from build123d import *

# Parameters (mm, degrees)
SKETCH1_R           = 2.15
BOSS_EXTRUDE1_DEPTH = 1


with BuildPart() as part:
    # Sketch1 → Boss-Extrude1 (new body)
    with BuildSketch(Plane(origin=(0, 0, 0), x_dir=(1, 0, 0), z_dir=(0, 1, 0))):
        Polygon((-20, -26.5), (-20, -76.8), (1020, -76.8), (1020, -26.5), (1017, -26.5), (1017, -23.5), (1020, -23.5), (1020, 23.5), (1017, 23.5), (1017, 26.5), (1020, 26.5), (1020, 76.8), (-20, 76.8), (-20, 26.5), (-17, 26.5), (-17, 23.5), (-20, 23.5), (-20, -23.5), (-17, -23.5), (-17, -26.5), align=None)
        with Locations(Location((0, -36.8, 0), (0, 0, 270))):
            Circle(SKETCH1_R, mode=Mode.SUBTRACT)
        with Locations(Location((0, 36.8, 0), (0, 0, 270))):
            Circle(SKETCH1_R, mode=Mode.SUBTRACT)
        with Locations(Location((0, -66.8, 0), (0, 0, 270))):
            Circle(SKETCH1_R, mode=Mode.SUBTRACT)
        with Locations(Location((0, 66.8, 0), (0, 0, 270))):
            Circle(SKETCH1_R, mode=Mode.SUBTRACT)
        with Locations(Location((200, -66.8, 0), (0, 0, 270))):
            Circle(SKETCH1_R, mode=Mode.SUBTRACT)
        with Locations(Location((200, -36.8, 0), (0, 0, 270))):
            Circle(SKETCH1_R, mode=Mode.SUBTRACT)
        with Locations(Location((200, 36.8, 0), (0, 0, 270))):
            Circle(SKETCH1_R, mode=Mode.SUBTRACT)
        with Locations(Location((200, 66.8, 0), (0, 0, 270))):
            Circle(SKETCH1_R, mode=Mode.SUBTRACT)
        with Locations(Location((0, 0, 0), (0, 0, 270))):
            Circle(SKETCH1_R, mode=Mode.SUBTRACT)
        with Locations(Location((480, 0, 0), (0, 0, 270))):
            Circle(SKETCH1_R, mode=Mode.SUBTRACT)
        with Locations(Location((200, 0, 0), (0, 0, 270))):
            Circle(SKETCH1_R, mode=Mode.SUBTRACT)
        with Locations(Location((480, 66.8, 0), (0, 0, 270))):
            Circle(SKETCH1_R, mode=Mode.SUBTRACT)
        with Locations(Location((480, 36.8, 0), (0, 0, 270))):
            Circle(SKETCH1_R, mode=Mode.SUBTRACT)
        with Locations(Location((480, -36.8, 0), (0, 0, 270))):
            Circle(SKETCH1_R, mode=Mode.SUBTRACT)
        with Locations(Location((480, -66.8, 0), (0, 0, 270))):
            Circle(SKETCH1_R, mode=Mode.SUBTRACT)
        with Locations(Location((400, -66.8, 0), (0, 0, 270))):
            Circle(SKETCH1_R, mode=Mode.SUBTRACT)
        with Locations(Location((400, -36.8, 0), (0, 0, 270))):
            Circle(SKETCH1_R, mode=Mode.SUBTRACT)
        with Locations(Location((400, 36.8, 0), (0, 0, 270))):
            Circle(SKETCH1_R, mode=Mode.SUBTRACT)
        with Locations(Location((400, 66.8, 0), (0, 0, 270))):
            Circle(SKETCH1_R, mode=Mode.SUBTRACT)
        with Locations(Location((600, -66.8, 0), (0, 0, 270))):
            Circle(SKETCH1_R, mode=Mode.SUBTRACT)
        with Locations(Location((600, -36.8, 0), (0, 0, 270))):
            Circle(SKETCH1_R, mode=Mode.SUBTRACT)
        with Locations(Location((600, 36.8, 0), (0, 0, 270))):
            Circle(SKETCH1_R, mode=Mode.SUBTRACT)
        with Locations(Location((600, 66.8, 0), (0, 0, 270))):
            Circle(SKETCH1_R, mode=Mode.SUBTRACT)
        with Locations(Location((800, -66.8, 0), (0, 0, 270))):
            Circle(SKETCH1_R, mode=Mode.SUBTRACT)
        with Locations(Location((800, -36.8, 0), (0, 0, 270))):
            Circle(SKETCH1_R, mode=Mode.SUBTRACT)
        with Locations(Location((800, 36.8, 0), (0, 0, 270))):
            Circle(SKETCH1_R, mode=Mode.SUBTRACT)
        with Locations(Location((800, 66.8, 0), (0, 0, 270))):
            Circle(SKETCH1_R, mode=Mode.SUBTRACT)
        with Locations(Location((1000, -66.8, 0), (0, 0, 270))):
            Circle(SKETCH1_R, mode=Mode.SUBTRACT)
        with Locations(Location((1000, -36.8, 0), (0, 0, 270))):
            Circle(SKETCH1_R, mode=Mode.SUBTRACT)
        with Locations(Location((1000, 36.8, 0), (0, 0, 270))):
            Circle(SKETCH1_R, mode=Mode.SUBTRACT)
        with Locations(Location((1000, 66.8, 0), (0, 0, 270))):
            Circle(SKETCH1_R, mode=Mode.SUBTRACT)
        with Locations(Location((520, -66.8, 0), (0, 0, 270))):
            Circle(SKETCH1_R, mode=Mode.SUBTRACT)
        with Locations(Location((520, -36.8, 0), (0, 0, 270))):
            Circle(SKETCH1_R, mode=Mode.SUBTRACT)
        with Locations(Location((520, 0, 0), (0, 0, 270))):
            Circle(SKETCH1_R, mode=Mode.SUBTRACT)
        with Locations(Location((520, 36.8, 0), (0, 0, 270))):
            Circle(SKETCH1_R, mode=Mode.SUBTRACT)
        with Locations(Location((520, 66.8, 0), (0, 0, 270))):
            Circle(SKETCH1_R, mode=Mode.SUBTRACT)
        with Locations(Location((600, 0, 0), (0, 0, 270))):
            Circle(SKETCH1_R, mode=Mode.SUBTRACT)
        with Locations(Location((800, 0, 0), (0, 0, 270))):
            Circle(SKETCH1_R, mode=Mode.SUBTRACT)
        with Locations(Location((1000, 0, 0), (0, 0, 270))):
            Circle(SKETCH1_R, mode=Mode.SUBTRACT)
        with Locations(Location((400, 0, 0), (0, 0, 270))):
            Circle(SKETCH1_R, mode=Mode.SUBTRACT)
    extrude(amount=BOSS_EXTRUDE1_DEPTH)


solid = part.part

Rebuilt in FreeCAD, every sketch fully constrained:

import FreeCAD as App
import Part
import Sketcher

V = App.Vector

doc = App.newDocument("Part")
body = doc.addObject("PartDesign::Body", "Body")

# Sketch on XZ plane
sketch1 = doc.addObject("Sketcher::SketchObject", "Sketch")
body.addObject(sketch1)
sketch1.AttachmentSupport = (doc.XZ_Plane, [""])
sketch1.MapMode = "FlatFace"
sketch1.addGeometry([
    Part.LineSegment(V(-20, 26.5, 0), V(-20, 76.8, 0)),  # 0
    Part.LineSegment(V(-20, 76.8, 0), V(1020, 76.8, 0)),  # 1
    Part.LineSegment(V(1020, 76.8, 0), V(1020, 26.5, 0)),  # 2
    Part.LineSegment(V(1020, 26.5, 0), V(1017, 26.5, 0)),  # 3
    Part.LineSegment(V(1017, 26.5, 0), V(1017, 23.5, 0)),  # 4
    Part.LineSegment(V(1017, 23.5, 0), V(1020, 23.5, 0)),  # 5
    Part.LineSegment(V(1020, 23.5, 0), V(1020, -23.5, 0)),  # 6
    Part.LineSegment(V(1020, -23.5, 0), V(1017, -23.5, 0)),  # 7
    Part.LineSegment(V(1017, -23.5, 0), V(1017, -26.5, 0)),  # 8
    Part.LineSegment(V(1017, -26.5, 0), V(1020, -26.5, 0)),  # 9
    Part.LineSegment(V(1020, -26.5, 0), V(1020, -76.8, 0)),  # 10
    Part.LineSegment(V(1020, -76.8, 0), V(-20, -76.8, 0)),  # 11
    Part.LineSegment(V(-20, -76.8, 0), V(-20, -26.5, 0)),  # 12
    Part.LineSegment(V(-20, -26.5, 0), V(-17, -26.5, 0)),  # 13
    Part.LineSegment(V(-17, -26.5, 0), V(-17, -23.5, 0)),  # 14
    Part.LineSegment(V(-17, -23.5, 0), V(-20, -23.5, 0)),  # 15
    Part.LineSegment(V(-20, -23.5, 0), V(-20, 23.5, 0)),  # 16
    Part.LineSegment(V(-20, 23.5, 0), V(-17, 23.5, 0)),  # 17
    Part.LineSegment(V(-17, 23.5, 0), V(-17, 26.5, 0)),  # 18
    Part.LineSegment(V(-17, 26.5, 0), V(-20, 26.5, 0)),  # 19
    Part.Circle(V(0, 66.8, 0), V(0, 0, 1), 2.1),  # 20
    Part.Circle(V(200, 66.8, 0), V(0, 0, 1), 2.1),  # 21
    Part.Circle(V(0, 36.8, 0), V(0, 0, 1), 2.1),  # 22
    Part.Circle(V(200, 36.8, 0), V(0, 0, 1), 2.1),  # 23
    Part.Circle(V(400, 66.8, 0), V(0, 0, 1), 2.1),  # 24
    Part.Circle(V(480, 66.8, 0), V(0, 0, 1), 2.1),  # 25
    Part.Circle(V(400, 36.8, 0), V(0, 0, 1), 2.1),  # 26
    Part.Circle(V(480, 36.8, 0), V(0, 0, 1), 2.1),  # 27
    Part.Circle(V(520, 66.8, 0), V(0, 0, 1), 2.1),  # 28
    Part.Circle(V(600, 66.8, 0), V(0, 0, 1), 2.1),  # 29
    Part.Circle(V(520, 36.8, 0), V(0, 0, 1), 2.1),  # 30
    Part.Circle(V(600, 36.8, 0), V(0, 0, 1), 2.1),  # 31
    Part.Circle(V(800, 66.8, 0), V(0, 0, 1), 2.1),  # 32
    Part.Circle(V(1000, 66.8, 0), V(0, 0, 1), 2.1),  # 33
    Part.Circle(V(800, 36.8, 0), V(0, 0, 1), 2.1),  # 34
    Part.Circle(V(1000, 36.8, 0), V(0, 0, 1), 2.1),  # 35
    Part.Circle(V(0, 0, 0), V(0, 0, 1), 2.1),  # 36
    Part.Circle(V(200, 0, 0), V(0, 0, 1), 2.1),  # 37
    Part.Circle(V(400, 0, 0), V(0, 0, 1), 2.1),  # 38
    Part.Circle(V(480, 0, 0), V(0, 0, 1), 2.1),  # 39
    Part.Circle(V(0, -36.8, 0), V(0, 0, 1), 2.1),  # 40
    Part.Circle(V(200, -36.8, 0), V(0, 0, 1), 2.1),  # 41
    Part.Circle(V(0, -66.8, 0), V(0, 0, 1), 2.1),  # 42
    Part.Circle(V(200, -66.8, 0), V(0, 0, 1), 2.1),  # 43
    Part.Circle(V(400, -36.8, 0), V(0, 0, 1), 2.1),  # 44
    Part.Circle(V(480, -36.8, 0), V(0, 0, 1), 2.1),  # 45
    Part.Circle(V(400, -66.8, 0), V(0, 0, 1), 2.1),  # 46
    Part.Circle(V(480, -66.8, 0), V(0, 0, 1), 2.1),  # 47
    Part.Circle(V(520, 0, 0), V(0, 0, 1), 2.1),  # 48
    Part.Circle(V(600, 0, 0), V(0, 0, 1), 2.1),  # 49
    Part.Circle(V(800, 0, 0), V(0, 0, 1), 2.1),  # 50
    Part.Circle(V(1000, 0, 0), V(0, 0, 1), 2.1),  # 51
    Part.Circle(V(520, -36.8, 0), V(0, 0, 1), 2.1),  # 52
    Part.Circle(V(600, -36.8, 0), V(0, 0, 1), 2.1),  # 53
    Part.Circle(V(520, -66.8, 0), V(0, 0, 1), 2.1),  # 54
    Part.Circle(V(600, -66.8, 0), V(0, 0, 1), 2.1),  # 55
    Part.Circle(V(800, -36.8, 0), V(0, 0, 1), 2.1),  # 56
    Part.Circle(V(1000, -36.8, 0), V(0, 0, 1), 2.1),  # 57
    Part.Circle(V(800, -66.8, 0), V(0, 0, 1), 2.1),  # 58
    Part.Circle(V(1000, -66.8, 0), V(0, 0, 1), 2.1),  # 59
], False)
sketch1.addConstraint([
    Sketcher.Constraint("Coincident", 0, 2, 1, 1),
    Sketcher.Constraint("Coincident", 1, 2, 2, 1),
    Sketcher.Constraint("Coincident", 2, 2, 3, 1),
    Sketcher.Constraint("Coincident", 3, 2, 4, 1),
    Sketcher.Constraint("Coincident", 4, 2, 5, 1),
    Sketcher.Constraint("Coincident", 5, 2, 6, 1),
    Sketcher.Constraint("Coincident", 6, 2, 7, 1),
    Sketcher.Constraint("Coincident", 7, 2, 8, 1),
    Sketcher.Constraint("Coincident", 8, 2, 9, 1),
    Sketcher.Constraint("Coincident", 9, 2, 10, 1),
    Sketcher.Constraint("Coincident", 10, 2, 11, 1),
    Sketcher.Constraint("Coincident", 11, 2, 12, 1),
    Sketcher.Constraint("Coincident", 12, 2, 13, 1),
    Sketcher.Constraint("Coincident", 13, 2, 14, 1),
    Sketcher.Constraint("Coincident", 14, 2, 15, 1),
    Sketcher.Constraint("Coincident", 15, 2, 16, 1),
    Sketcher.Constraint("Coincident", 16, 2, 17, 1),
    Sketcher.Constraint("Coincident", 17, 2, 18, 1),
    Sketcher.Constraint("Coincident", 18, 2, 19, 1),
    Sketcher.Constraint("Coincident", 19, 2, 0, 1),
    Sketcher.Constraint("Vertical", 0),
    Sketcher.Constraint("Horizontal", 1),
    Sketcher.Constraint("Vertical", 2),
    Sketcher.Constraint("Horizontal", 3),
    Sketcher.Constraint("Vertical", 4),
    Sketcher.Constraint("Horizontal", 5),
    Sketcher.Constraint("Vertical", 6),
    Sketcher.Constraint("Horizontal", 7),
    Sketcher.Constraint("Vertical", 8),
    Sketcher.Constraint("Horizontal", 9),
    Sketcher.Constraint("Vertical", 10),
    Sketcher.Constraint("Horizontal", 11),
    Sketcher.Constraint("Vertical", 12),
    Sketcher.Constraint("Horizontal", 13),
    Sketcher.Constraint("Vertical", 14),
    Sketcher.Constraint("Horizontal", 15),
    Sketcher.Constraint("Vertical", 16),
    Sketcher.Constraint("Horizontal", 17),
    Sketcher.Constraint("Vertical", 18),
    Sketcher.Constraint("Horizontal", 19),
    Sketcher.Constraint("Coincident", 36, 3, -1, 1),
    Sketcher.Constraint("Equal", 20, 21),
    Sketcher.Constraint("Equal", 21, 22),
    Sketcher.Constraint("Equal", 22, 23),
    Sketcher.Constraint("Equal", 23, 24),
    Sketcher.Constraint("Equal", 24, 25),
    Sketcher.Constraint("Equal", 25, 26),
    Sketcher.Constraint("Equal", 26, 27),
    Sketcher.Constraint("Equal", 27, 28),
    Sketcher.Constraint("Equal", 28, 29),
    Sketcher.Constraint("Equal", 29, 30),
    Sketcher.Constraint("Equal", 30, 31),
    Sketcher.Constraint("Equal", 31, 32),
    Sketcher.Constraint("Equal", 32, 33),
    Sketcher.Constraint("Equal", 33, 34),
    Sketcher.Constraint("Equal", 34, 35),
    Sketcher.Constraint("Equal", 35, 36),
    Sketcher.Constraint("Equal", 36, 37),
    Sketcher.Constraint("Equal", 37, 38),
    Sketcher.Constraint("Equal", 38, 39),
    Sketcher.Constraint("Equal", 39, 40),
    Sketcher.Constraint("Equal", 40, 41),
    Sketcher.Constraint("Equal", 41, 42),
    Sketcher.Constraint("Equal", 42, 43),
    Sketcher.Constraint("Equal", 43, 44),
    Sketcher.Constraint("Equal", 44, 45),
    Sketcher.Constraint("Equal", 45, 46),
    Sketcher.Constraint("Equal", 46, 47),
    Sketcher.Constraint("Equal", 47, 48),
    Sketcher.Constraint("Equal", 48, 49),
    Sketcher.Constraint("Equal", 49, 50),
    Sketcher.Constraint("Equal", 50, 51),
    Sketcher.Constraint("Equal", 51, 52),
    Sketcher.Constraint("Equal", 52, 53),
    Sketcher.Constraint("Equal", 53, 54),
    Sketcher.Constraint("Equal", 54, 55),
    Sketcher.Constraint("Equal", 55, 56),
    Sketcher.Constraint("Equal", 56, 57),
    Sketcher.Constraint("Equal", 57, 58),
    Sketcher.Constraint("Equal", 58, 59),
    Sketcher.Constraint("Symmetric", 22, 3, 40, 3, -1, 1),
    Sketcher.Constraint("Symmetric", 20, 3, 42, 3, -1, 1),
    Sketcher.Constraint("Symmetric", 23, 3, 41, 3, -1),
    Sketcher.Constraint("Symmetric", 21, 3, 43, 3, -1),
    Sketcher.Constraint("Symmetric", 26, 3, 44, 3, -1),
    Sketcher.Constraint("Symmetric", 27, 3, 45, 3, -1),
    Sketcher.Constraint("Symmetric", 24, 3, 46, 3, -1),
    Sketcher.Constraint("Symmetric", 25, 3, 47, 3, -1),
    Sketcher.Constraint("Symmetric", 30, 3, 52, 3, -1),
    Sketcher.Constraint("Symmetric", 31, 3, 53, 3, -1),
    Sketcher.Constraint("Symmetric", 28, 3, 54, 3, -1),
    Sketcher.Constraint("Symmetric", 29, 3, 55, 3, -1),
    Sketcher.Constraint("Symmetric", 34, 3, 56, 3, -1),
    Sketcher.Constraint("Symmetric", 35, 3, 57, 3, -1),
    Sketcher.Constraint("Symmetric", 32, 3, 58, 3, -1),
    Sketcher.Constraint("Symmetric", 33, 3, 59, 3, -1),
    Sketcher.Constraint("Symmetric", 4, 2, 7, 2, -1),
    Sketcher.Constraint("Symmetric", 2, 2, 9, 2, -1),
    Sketcher.Constraint("Symmetric", 0, 2, 11, 2, -1),
    Sketcher.Constraint("Symmetric", 14, 2, 17, 2, -1),
    Sketcher.Constraint("PointOnObject", 20, 3, -2),
    Sketcher.Constraint("PointOnObject", 22, 3, -2),
    Sketcher.Constraint("PointOnObject", 37, 3, -1),
    Sketcher.Constraint("PointOnObject", 38, 3, -1),
    Sketcher.Constraint("PointOnObject", 39, 3, -1),
    Sketcher.Constraint("PointOnObject", 48, 3, -1),
    Sketcher.Constraint("PointOnObject", 49, 3, -1),
    Sketcher.Constraint("PointOnObject", 50, 3, -1),
    Sketcher.Constraint("PointOnObject", 51, 3, -1),
    Sketcher.Constraint("Horizontal", 20, 3, 21, 3),
    Sketcher.Constraint("Horizontal", 22, 3, 23, 3),
    Sketcher.Constraint("Horizontal", 21, 3, 24, 3),
    Sketcher.Constraint("Horizontal", 24, 3, 25, 3),
    Sketcher.Constraint("Horizontal", 23, 3, 26, 3),
    Sketcher.Constraint("Horizontal", 26, 3, 27, 3),
    Sketcher.Constraint("Horizontal", 25, 3, 28, 3),
    Sketcher.Constraint("Horizontal", 28, 3, 29, 3),
    Sketcher.Constraint("Horizontal", 27, 3, 30, 3),
    Sketcher.Constraint("Horizontal", 30, 3, 31, 3),
    Sketcher.Constraint("Horizontal", 29, 3, 32, 3),
    Sketcher.Constraint("Horizontal", 32, 3, 33, 3),
    Sketcher.Constraint("Horizontal", 31, 3, 34, 3),
    Sketcher.Constraint("Horizontal", 34, 3, 35, 3),
    Sketcher.Constraint("Horizontal", 9, 2, 12, 2),
    Sketcher.Constraint("Horizontal", 7, 2, 14, 2),
    Sketcher.Constraint("Horizontal", 3, 2, 18, 2),
    Sketcher.Constraint("Vertical", 21, 3, 23, 3),
    Sketcher.Constraint("Vertical", 24, 3, 26, 3),
    Sketcher.Constraint("Vertical", 25, 3, 27, 3),
    Sketcher.Constraint("Vertical", 28, 3, 30, 3),
    Sketcher.Constraint("Vertical", 29, 3, 31, 3),
    Sketcher.Constraint("Vertical", 32, 3, 34, 3),
    Sketcher.Constraint("Vertical", 33, 3, 35, 3),
    Sketcher.Constraint("Vertical", 23, 3, 37, 3),
    Sketcher.Constraint("Vertical", 26, 3, 38, 3),
    Sketcher.Constraint("Vertical", 27, 3, 39, 3),
    Sketcher.Constraint("Vertical", 30, 3, 48, 3),
    Sketcher.Constraint("Vertical", 31, 3, 49, 3),
    Sketcher.Constraint("Vertical", 34, 3, 50, 3),
    Sketcher.Constraint("Vertical", 35, 3, 51, 3),
    Sketcher.Constraint("Vertical", 2, 2, 5, 2),
    Sketcher.Constraint("Vertical", 12, 2, 15, 2),
    Sketcher.Constraint("Equal", 9, 13),
    Sketcher.Constraint("Equal", 19, 4),
    Sketcher.Constraint("Diameter", 20, 4.3),
    Sketcher.Constraint("DistanceX", 1, 1, 1, 2, 1040.0),
    Sketcher.Constraint("DistanceX", 3, 2, 3, 1, 3.0),
    Sketcher.Constraint("DistanceY", 6, 2, 6, 1, 47.0),
    Sketcher.Constraint("DistanceY", 0, 1, 0, 2, 50.3),
    Sketcher.Constraint("DistanceX", -1, 1, 21, 3, 200.0),
    Sketcher.Constraint("DistanceX", -1, 1, 24, 3, 400.0),
    Sketcher.Constraint("DistanceX", -1, 1, 25, 3, 480.0),
    Sketcher.Constraint("DistanceX", -1, 1, 28, 3, 520.0),
    Sketcher.Constraint("DistanceX", -1, 1, 29, 3, 600.0),
    Sketcher.Constraint("DistanceX", -1, 1, 32, 3, 800.0),
    Sketcher.Constraint("DistanceX", -1, 1, 33, 3, 1000.0),
    Sketcher.Constraint("DistanceX", 0, 2, -1, 1, 20.0),
    Sketcher.Constraint("DistanceY", 22, 3, 20, 3, 30.0),
    Sketcher.Constraint("DistanceY", 20, 3, 0, 2, 10.0),
])
pad1 = doc.addObject("PartDesign::Pad", "Pad")
body.addObject(pad1)
pad1.Profile = sketch1
pad1.Length = 1
pad1.Reversed = True

doc.recompute()
